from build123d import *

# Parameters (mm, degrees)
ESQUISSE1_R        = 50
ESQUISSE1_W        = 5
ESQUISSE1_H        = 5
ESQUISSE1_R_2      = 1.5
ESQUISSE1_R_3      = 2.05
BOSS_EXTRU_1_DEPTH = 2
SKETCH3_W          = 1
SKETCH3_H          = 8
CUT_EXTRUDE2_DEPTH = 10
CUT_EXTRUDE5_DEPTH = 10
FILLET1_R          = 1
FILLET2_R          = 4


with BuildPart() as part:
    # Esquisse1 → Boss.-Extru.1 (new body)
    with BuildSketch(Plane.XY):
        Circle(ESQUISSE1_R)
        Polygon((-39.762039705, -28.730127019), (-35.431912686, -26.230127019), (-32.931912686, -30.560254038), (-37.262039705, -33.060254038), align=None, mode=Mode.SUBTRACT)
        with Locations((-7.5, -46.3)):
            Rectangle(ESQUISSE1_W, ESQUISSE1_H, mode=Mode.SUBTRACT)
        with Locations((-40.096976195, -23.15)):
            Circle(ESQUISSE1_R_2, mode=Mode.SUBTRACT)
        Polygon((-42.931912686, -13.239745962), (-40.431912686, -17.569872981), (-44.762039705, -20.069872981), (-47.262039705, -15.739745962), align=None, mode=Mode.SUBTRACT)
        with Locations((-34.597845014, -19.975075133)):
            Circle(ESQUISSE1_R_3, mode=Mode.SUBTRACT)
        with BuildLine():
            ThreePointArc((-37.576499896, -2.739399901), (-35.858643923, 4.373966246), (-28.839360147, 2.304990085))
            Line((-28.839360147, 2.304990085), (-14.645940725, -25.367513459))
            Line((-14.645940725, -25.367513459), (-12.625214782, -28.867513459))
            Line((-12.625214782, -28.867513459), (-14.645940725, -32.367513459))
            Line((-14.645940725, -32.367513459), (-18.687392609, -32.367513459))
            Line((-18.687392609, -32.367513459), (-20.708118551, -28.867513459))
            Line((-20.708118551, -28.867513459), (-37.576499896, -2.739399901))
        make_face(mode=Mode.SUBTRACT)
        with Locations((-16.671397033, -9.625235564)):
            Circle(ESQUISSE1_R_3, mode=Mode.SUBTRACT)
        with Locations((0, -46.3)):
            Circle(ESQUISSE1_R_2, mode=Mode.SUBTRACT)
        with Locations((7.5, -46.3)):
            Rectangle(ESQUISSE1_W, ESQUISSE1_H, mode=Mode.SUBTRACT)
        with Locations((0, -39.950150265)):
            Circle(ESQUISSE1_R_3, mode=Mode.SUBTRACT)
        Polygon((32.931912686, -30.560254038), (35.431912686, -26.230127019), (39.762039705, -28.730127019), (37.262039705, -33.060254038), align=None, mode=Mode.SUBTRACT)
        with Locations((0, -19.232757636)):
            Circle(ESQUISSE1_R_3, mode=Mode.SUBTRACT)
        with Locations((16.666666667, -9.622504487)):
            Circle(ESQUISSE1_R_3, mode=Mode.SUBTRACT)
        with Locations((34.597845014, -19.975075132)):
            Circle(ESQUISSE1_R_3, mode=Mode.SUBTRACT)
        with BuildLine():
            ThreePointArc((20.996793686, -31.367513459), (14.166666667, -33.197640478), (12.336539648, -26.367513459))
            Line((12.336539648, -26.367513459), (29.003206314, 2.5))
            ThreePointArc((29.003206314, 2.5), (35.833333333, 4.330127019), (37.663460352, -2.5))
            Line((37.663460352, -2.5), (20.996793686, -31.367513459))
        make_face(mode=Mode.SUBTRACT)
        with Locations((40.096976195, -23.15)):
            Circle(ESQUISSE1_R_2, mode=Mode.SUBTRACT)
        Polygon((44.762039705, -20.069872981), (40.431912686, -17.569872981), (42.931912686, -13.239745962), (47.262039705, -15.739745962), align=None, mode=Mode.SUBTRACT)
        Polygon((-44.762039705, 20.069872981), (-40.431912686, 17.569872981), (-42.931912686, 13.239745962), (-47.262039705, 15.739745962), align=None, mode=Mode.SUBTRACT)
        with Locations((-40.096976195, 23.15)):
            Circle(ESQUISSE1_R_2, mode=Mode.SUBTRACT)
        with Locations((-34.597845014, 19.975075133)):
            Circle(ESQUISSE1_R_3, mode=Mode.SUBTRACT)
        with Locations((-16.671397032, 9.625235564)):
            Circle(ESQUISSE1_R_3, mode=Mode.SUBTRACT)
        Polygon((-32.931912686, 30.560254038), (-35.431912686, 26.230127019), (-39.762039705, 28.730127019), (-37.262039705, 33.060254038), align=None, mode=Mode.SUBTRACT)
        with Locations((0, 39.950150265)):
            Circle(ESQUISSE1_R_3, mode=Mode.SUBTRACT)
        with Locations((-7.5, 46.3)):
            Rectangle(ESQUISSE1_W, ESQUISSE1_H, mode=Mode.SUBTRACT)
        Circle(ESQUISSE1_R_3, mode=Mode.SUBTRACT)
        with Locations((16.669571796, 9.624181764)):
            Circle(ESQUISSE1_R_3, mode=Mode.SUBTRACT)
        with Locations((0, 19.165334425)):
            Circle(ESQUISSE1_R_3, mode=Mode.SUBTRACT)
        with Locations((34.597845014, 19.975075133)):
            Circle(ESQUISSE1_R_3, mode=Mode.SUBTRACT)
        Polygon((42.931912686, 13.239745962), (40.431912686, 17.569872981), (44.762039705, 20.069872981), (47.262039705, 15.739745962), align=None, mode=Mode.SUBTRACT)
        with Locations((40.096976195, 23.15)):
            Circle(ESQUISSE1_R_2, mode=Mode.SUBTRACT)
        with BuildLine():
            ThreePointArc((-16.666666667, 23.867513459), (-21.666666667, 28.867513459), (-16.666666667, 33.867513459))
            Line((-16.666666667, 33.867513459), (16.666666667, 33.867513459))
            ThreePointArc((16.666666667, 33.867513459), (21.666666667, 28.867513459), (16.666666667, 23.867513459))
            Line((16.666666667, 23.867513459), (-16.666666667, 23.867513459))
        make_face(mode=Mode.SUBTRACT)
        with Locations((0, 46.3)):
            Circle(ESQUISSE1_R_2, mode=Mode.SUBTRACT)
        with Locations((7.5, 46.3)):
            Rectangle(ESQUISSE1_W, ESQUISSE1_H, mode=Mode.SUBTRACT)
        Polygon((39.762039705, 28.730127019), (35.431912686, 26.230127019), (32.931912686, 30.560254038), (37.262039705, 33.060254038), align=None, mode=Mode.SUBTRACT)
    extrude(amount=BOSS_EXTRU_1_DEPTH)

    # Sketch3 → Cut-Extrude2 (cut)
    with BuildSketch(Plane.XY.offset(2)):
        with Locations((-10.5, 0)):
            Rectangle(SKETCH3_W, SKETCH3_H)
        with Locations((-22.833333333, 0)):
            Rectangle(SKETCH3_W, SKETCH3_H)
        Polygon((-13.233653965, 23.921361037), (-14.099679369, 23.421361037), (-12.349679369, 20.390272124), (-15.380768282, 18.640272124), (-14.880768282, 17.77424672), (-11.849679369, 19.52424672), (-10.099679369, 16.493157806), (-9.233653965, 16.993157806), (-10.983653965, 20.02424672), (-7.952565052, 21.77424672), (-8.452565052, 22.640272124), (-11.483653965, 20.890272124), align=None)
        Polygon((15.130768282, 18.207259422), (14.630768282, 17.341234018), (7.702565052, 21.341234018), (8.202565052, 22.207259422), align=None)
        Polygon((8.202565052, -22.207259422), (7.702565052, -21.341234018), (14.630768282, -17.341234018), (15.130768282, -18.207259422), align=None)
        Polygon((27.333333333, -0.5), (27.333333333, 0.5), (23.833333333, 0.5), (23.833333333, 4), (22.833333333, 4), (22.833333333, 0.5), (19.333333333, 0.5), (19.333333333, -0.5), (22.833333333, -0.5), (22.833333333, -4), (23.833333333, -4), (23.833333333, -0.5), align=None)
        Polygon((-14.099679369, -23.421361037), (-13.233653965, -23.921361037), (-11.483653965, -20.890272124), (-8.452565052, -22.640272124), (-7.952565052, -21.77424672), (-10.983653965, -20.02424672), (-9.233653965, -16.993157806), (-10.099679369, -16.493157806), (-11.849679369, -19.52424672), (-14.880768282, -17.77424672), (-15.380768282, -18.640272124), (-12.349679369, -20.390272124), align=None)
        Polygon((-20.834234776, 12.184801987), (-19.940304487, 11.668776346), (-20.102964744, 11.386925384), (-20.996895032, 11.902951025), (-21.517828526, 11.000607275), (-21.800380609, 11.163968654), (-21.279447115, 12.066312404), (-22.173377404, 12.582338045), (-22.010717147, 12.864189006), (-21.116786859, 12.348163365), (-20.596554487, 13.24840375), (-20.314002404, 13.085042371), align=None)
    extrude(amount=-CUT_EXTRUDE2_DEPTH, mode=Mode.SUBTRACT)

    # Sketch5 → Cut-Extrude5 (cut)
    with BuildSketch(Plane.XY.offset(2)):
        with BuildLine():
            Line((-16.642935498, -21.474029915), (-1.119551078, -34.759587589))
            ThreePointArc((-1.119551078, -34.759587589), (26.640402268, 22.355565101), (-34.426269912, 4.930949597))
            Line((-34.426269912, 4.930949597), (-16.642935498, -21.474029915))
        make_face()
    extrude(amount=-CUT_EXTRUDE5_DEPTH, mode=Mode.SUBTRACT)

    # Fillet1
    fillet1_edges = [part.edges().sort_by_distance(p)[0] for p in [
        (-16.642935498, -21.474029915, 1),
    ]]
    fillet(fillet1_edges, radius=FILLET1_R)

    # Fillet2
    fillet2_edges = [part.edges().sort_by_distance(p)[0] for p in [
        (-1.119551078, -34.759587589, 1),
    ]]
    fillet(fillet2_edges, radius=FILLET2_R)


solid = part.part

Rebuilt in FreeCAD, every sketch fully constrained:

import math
import FreeCAD as App
import Part
import Sketcher

V = App.Vector
Q = App.Units.Quantity


def edges_at(feature, points):
    """Names of the edges that pass closest to the given points."""
    edges = feature.Shape.Edges
    near = lambda p: min(range(len(edges)), key=lambda i: edges[i].distToShape(Part.Vertex(*p))[0])
    return sorted({f"Edge{near(p) + 1}" for p in points})

doc = App.newDocument("Part")
body = doc.addObject("PartDesign::Body", "Body")

# Sketch on XY plane
sketch1 = body.newObject("Sketcher::SketchObject", "Sketch")
sketch1.AttachmentSupport = (doc.getObject("XY_Plane"), [""])
sketch1.MapMode = "FlatFace"
sketch1.addGeometry([
    Part.Circle(V(0, 0, 0), V(0, 0, 1), 50),  # 0
    Part.LineSegment(V(-37.3, -33.1, 0), V(-39.8, -28.7, 0)),  # 1
    Part.LineSegment(V(-39.8, -28.7, 0), V(-35.4, -26.2, 0)),  # 2
    Part.LineSegment(V(-35.4, -26.2, 0), V(-32.9, -30.6, 0)),  # 3
    Part.LineSegment(V(-32.9, -30.6, 0), V(-37.3, -33.1, 0)),  # 4
    Part.LineSegment(V(-5, -48.8, 0), V(-10, -48.8, 0)),  # 5
    Part.LineSegment(V(-10, -48.8, 0), V(-10, -43.8, 0)),  # 6
    Part.LineSegment(V(-10, -43.8, 0), V(-5, -43.8, 0)),  # 7
    Part.LineSegment(V(-5, -43.8, 0), V(-5, -48.8, 0)),  # 8
    Part.Circle(V(-40.1, -23.1, 0), V(0, 0, 1), 1.5),  # 9
    Part.LineSegment(V(-47.3, -15.7, 0), V(-42.9, -13.2, 0)),  # 10
    Part.LineSegment(V(-42.9, -13.2, 0), V(-40.4, -17.6, 0)),  # 11
    Part.LineSegment(V(-40.4, -17.6, 0), V(-44.8, -20.1, 0)),  # 12
    Part.LineSegment(V(-44.8, -20.1, 0), V(-47.3, -15.7, 0)),  # 13
    Part.Circle(V(-34.6, -20, 0), V(0, 0, 1), 2),  # 14
    Part.LineSegment(V(-20.7, -28.9, 0), V(-37.6, -2.7, 0)),  # 15
    Part.ArcOfCircle(Part.Circle(V(-33.3, 0, 0), V(0, 0, 1), 5.1), math.radians(27), math.radians(213)),  # 16
    Part.LineSegment(V(-28.8, 2.3, 0), V(-14.6, -25.4, 0)),  # 17
    Part.LineSegment(V(-14.6, -25.4, 0), V(-12.6, -28.9, 0)),  # 18
    Part.LineSegment(V(-12.6, -28.9, 0), V(-14.6, -32.4, 0)),  # 19
    Part.LineSegment(V(-14.6, -32.4, 0), V(-18.7, -32.4, 0)),  # 20
    Part.LineSegment(V(-18.7, -32.4, 0), V(-20.7, -28.9, 0)),  # 21
    Part.Circle(V(-16.7, -9.6, 0), V(0, 0, 1), 2),  # 22
    Part.Circle(V(0, -46.3, 0), V(0, 0, 1), 1.5),  # 23
    Part.LineSegment(V(10, -48.8, 0), V(5, -48.8, 0)),  # 24
    Part.LineSegment(V(5, -48.8, 0), V(5, -43.8, 0)),  # 25
    Part.LineSegment(V(5, -43.8, 0), V(10, -43.8, 0)),  # 26
    Part.LineSegment(V(10, -43.8, 0), V(10, -48.8, 0)),  # 27
    Part.Circle(V(0, -40, 0), V(0, 0, 1), 2),  # 28
    Part.LineSegment(V(37.3, -33.1, 0), V(32.9, -30.6, 0)),  # 29
    Part.LineSegment(V(32.9, -30.6, 0), V(35.4, -26.2, 0)),  # 30
    Part.LineSegment(V(35.4, -26.2, 0), V(39.8, -28.7, 0)),  # 31
    Part.LineSegment(V(39.8, -28.7, 0), V(37.3, -33.1, 0)),  # 32
    Part.Circle(V(0, -19.2, 0), V(0, 0, 1), 2),  # 33
    Part.Circle(V(16.7, -9.6, 0), V(0, 0, 1), 2),  # 34
    Part.Circle(V(34.6, -20, 0), V(0, 0, 1), 2),  # 35
    Part.LineSegment(V(37.7, -2.5, 0), V(21, -31.4, 0)),  # 36
    Part.ArcOfCircle(Part.Circle(V(16.7, -28.9, 0), V(0, 0, 1), 5), math.radians(150), math.radians(330)),  # 37
    Part.LineSegment(V(12.3, -26.4, 0), V(29, 2.5, 0)),  # 38
    Part.ArcOfCircle(Part.Circle(V(33.3, 0, 0), V(0, 0, 1), 5), math.radians(-30), math.radians(150)),  # 39
    Part.Circle(V(40.1, -23.1, 0), V(0, 0, 1), 1.5),  # 40
    Part.LineSegment(V(47.3, -15.7, 0), V(44.8, -20.1, 0)),  # 41
    Part.LineSegment(V(44.8, -20.1, 0), V(40.4, -17.6, 0)),  # 42
    Part.LineSegment(V(40.4, -17.6, 0), V(42.9, -13.2, 0)),  # 43
    Part.LineSegment(V(42.9, -13.2, 0), V(47.3, -15.7, 0)),  # 44
    Part.LineSegment(V(-47.3, 15.7, 0), V(-44.8, 20.1, 0)),  # 45
    Part.LineSegment(V(-44.8, 20.1, 0), V(-40.4, 17.6, 0)),  # 46
    Part.LineSegment(V(-40.4, 17.6, 0), V(-42.9, 13.2, 0)),  # 47
    Part.LineSegment(V(-42.9, 13.2, 0), V(-47.3, 15.7, 0)),  # 48
    Part.Circle(V(-40.1, 23.1, 0), V(0, 0, 1), 1.5),  # 49
    Part.Circle(V(-34.6, 20, 0), V(0, 0, 1), 2),  # 50
    Part.Circle(V(-16.7, 9.6, 0), V(0, 0, 1), 2),  # 51
    Part.LineSegment(V(-37.3, 33.1, 0), V(-32.9, 30.6, 0)),  # 52
    Part.LineSegment(V(-32.9, 30.6, 0), V(-35.4, 26.2, 0)),  # 53
    Part.LineSegment(V(-35.4, 26.2, 0), V(-39.8, 28.7, 0)),  # 54
    Part.LineSegment(V(-39.8, 28.7, 0), V(-37.3, 33.1, 0)),  # 55
    Part.LineSegment(V(-5, 43.8, 0), V(-10, 43.8, 0)),  # 56
    Part.LineSegment(V(-10, 43.8, 0), V(-10, 48.8, 0)),  # 57
    Part.LineSegment(V(-10, 48.8, 0), V(-5, 48.8, 0)),  # 58
    Part.LineSegment(V(-5, 48.8, 0), V(-5, 43.8, 0)),  # 59
    Part.Circle(V(0, 0, 0), V(0, 0, 1), 2),  # 60
    Part.Circle(V(16.7, 9.6, 0), V(0, 0, 1), 2),  # 61
    Part.Circle(V(0, 19.2, 0), V(0, 0, 1), 2),  # 62
    Part.Circle(V(34.6, 20, 0), V(0, 0, 1), 2),  # 63
    Part.LineSegment(V(47.3, 15.7, 0), V(42.9, 13.2, 0)),  # 64
    Part.LineSegment(V(42.9, 13.2, 0), V(40.4, 17.6, 0)),  # 65
    Part.LineSegment(V(40.4, 17.6, 0), V(44.8, 20.1, 0)),  # 66
    Part.LineSegment(V(44.8, 20.1, 0), V(47.3, 15.7, 0)),  # 67
    Part.Circle(V(40.1, 23.1, 0), V(0, 0, 1), 1.5),  # 68
    Part.LineSegment(V(16.7, 23.9, 0), V(-16.7, 23.9, 0)),  # 69
    Part.ArcOfCircle(Part.Circle(V(-16.7, 28.9, 0), V(0, 0, 1), 5), math.radians(90), math.radians(270)),  # 70
    Part.LineSegment(V(-16.7, 33.9, 0), V(16.7, 33.9, 0)),  # 71
    Part.ArcOfCircle(Part.Circle(V(16.7, 28.9, 0), V(0, 0, 1), 5), math.radians(-90), math.radians(90)),  # 72
    Part.Circle(V(0, 40, 0), V(0, 0, 1), 2),  # 73
    Part.Circle(V(0, 46.3, 0), V(0, 0, 1), 1.5),  # 74
    Part.LineSegment(V(10, 43.8, 0), V(5, 43.8, 0)),  # 75
    Part.LineSegment(V(5, 43.8, 0), V(5, 48.8, 0)),  # 76
    Part.LineSegment(V(5, 48.8, 0), V(10, 48.8, 0)),  # 77
    Part.LineSegment(V(10, 48.8, 0), V(10, 43.8, 0)),  # 78
    Part.LineSegment(V(37.3, 33.1, 0), V(39.8, 28.7, 0)),  # 79
    Part.LineSegment(V(39.8, 28.7, 0), V(35.4, 26.2, 0)),  # 80
    Part.LineSegment(V(35.4, 26.2, 0), V(32.9, 30.6, 0)),  # 81
    Part.LineSegment(V(32.9, 30.6, 0), V(37.3, 33.1, 0)),  # 82
], False)
sketch1.addConstraint([
    Sketcher.Constraint("Coincident", 1, 2, 2, 1),
    Sketcher.Constraint("Coincident", 2, 2, 3, 1),
    Sketcher.Constraint("Coincident", 3, 2, 4, 1),
    Sketcher.Constraint("Coincident", 4, 2, 1, 1),
    Sketcher.Constraint("Coincident", 5, 2, 6, 1),
    Sketcher.Constraint("Coincident", 6, 2, 7, 1),
    Sketcher.Constraint("Coincident", 7, 2, 8, 1),
    Sketcher.Constraint("Coincident", 8, 2, 5, 1),
    Sketcher.Constraint("Coincident", 10, 2, 11, 1),
    Sketcher.Constraint("Coincident", 11, 2, 12, 1),
    Sketcher.Constraint("Coincident", 12, 2, 13, 1),
    Sketcher.Constraint("Coincident", 13, 2, 10, 1),
    Sketcher.Constraint("Tangent", 15, 2, 16, 2),
    Sketcher.Constraint("Tangent", 16, 1, 17, 1),
    Sketcher.Constraint("Coincident", 17, 2, 18, 1),
    Sketcher.Constraint("Coincident", 18, 2, 19, 1),
    Sketcher.Constraint("Coincident", 19, 2, 20, 1),
    Sketcher.Constraint("Coincident", 20, 2, 21, 1),
    Sketcher.Constraint("Coincident", 21, 2, 15, 1),
    Sketcher.Constraint("Coincident", 24, 2, 25, 1),
    Sketcher.Constraint("Coincident", 25, 2, 26, 1),
    Sketcher.Constraint("Coincident", 26, 2, 27, 1),
    Sketcher.Constraint("Coincident", 27, 2, 24, 1),
    Sketcher.Constraint("Coincident", 29, 2, 30, 1),
    Sketcher.Constraint("Coincident", 30, 2, 31, 1),
    Sketcher.Constraint("Coincident", 31, 2, 32, 1),
    Sketcher.Constraint("Coincident", 32, 2, 29, 1),
    Sketcher.Constraint("Tangent", 36, 2, 37, 2),
    Sketcher.Constraint("Tangent", 37, 1, 38, 1),
    Sketcher.Constraint("Tangent", 38, 2, 39, 2),
    Sketcher.Constraint("Tangent", 39, 1, 36, 1),
    Sketcher.Constraint("Coincident", 41, 2, 42, 1),
    Sketcher.Constraint("Coincident", 42, 2, 43, 1),
    Sketcher.Constraint("Coincident", 43, 2, 44, 1),
    Sketcher.Constraint("Coincident", 44, 2, 41, 1),
    Sketcher.Constraint("Coincident", 45, 2, 46, 1),
    Sketcher.Constraint("Coincident", 46, 2, 47, 1),
    Sketcher.Constraint("Coincident", 47, 2, 48, 1),
    Sketcher.Constraint("Coincident", 48, 2, 45, 1),
    Sketcher.Constraint("Coincident", 52, 2, 53, 1),
    Sketcher.Constraint("Coincident", 53, 2, 54, 1),
    Sketcher.Constraint("Coincident", 54, 2, 55, 1),
    Sketcher.Constraint("Coincident", 55, 2, 52, 1),
    Sketcher.Constraint("Coincident", 56, 2, 57, 1),
    Sketcher.Constraint("Coincident", 57, 2, 58, 1),
    Sketcher.Constraint("Coincident", 58, 2, 59, 1),
    Sketcher.Constraint("Coincident", 59, 2, 56, 1),
    Sketcher.Constraint("Coincident", 64, 2, 65, 1),
    Sketcher.Constraint("Coincident", 65, 2, 66, 1),
    Sketcher.Constraint("Coincident", 66, 2, 67, 1),
    Sketcher.Constraint("Coincident", 67, 2, 64, 1),
    Sketcher.Constraint("Tangent", 69, 2, 70, 2),
    Sketcher.Constraint("Tangent", 70, 1, 71, 1),
    Sketcher.Constraint("Tangent", 71, 2, 72, 2),
    Sketcher.Constraint("Tangent", 72, 1, 69, 1),
    Sketcher.Constraint("Coincident", 75, 2, 76, 1),
    Sketcher.Constraint("Coincident", 76, 2, 77, 1),
    Sketcher.Constraint("Coincident", 77, 2, 78, 1),
    Sketcher.Constraint("Coincident", 78, 2, 75, 1),
    Sketcher.Constraint("Coincident", 79, 2, 80, 1),
    Sketcher.Constraint("Coincident", 80, 2, 81, 1),
    Sketcher.Constraint("Coincident", 81, 2, 82, 1),
    Sketcher.Constraint("Coincident", 82, 2, 79, 1),
    Sketcher.Constraint("Horizontal", 5),
    Sketcher.Constraint("Vertical", 6),
    Sketcher.Constraint("Horizontal", 7),
    Sketcher.Constraint("Vertical", 8),
    Sketcher.Constraint("Horizontal", 20),
    Sketcher.Constraint("Horizontal", 24),
    Sketcher.Constraint("Vertical", 25),
    Sketcher.Constraint("Horizontal", 26),
    Sketcher.Constraint("Vertical", 27),
    Sketcher.Constraint("Horizontal", 56),
    Sketcher.Constraint("Vertical", 57),
    Sketcher.Constraint("Horizontal", 58),
    Sketcher.Constraint("Vertical", 59),
    Sketcher.Constraint("Horizontal", 69),
    Sketcher.Constraint("Horizontal", 71),
    Sketcher.Constraint("Horizontal", 75),
    Sketcher.Constraint("Vertical", 76),
    Sketcher.Constraint("Horizontal", 77),
    Sketcher.Constraint("Vertical", 78),
    Sketcher.Constraint("Coincident", 0, 3, -1, 1),
    Sketcher.Constraint("Coincident", 60, 3, -1, 1),
    Sketcher.Constraint("Equal", 14, 22),
    Sketcher.Constraint("Equal", 9, 23),
    Sketcher.Constraint("Equal", 22, 28),
    Sketcher.Constraint("Equal", 28, 33),
    Sketcher.Constraint("Equal", 33, 34),
    Sketcher.Constraint("Equal", 34, 35),
    Sketcher.Constraint("Equal", 37, 39),
    Sketcher.Constraint("Equal", 23, 40),
    Sketcher.Constraint("Equal", 40, 49),
    Sketcher.Constraint("Equal", 35, 50),
    Sketcher.Constraint("Equal", 50, 51),
    Sketcher.Constraint("Equal", 51, 60),
    Sketcher.Constraint("Equal", 60, 61),
    Sketcher.Constraint("Equal", 61, 62),
    Sketcher.Constraint("Equal", 62, 63),
    Sketcher.Constraint("Equal", 49, 68),
    Sketcher.Constraint("Equal", 39, 70),
    Sketcher.Constraint("Equal", 63, 73),
    Sketcher.Constraint("Equal", 68, 74),
    Sketcher.Constraint("Symmetric", 16, 3, 39, 3, -1, 1),
    Sketcher.Constraint("Symmetric", 40, 3, 49, 3, -1, 1),
    Sketcher.Constraint("Symmetric", 35, 3, 50, 3, -1, 1),
    Sketcher.Constraint("Symmetric", 14, 3, 63, 3, -1, 1),
    Sketcher.Constraint("Symmetric", 9, 3, 68, 3, -1, 1),
    Sketcher.Constraint("Symmetric", 37, 3, 70, 3, -1, 1),
    Sketcher.Constraint("Symmetric", 28, 3, 73, 3, -1, 1),
    Sketcher.Constraint("Symmetric", 23, 3, 74, 3, -1, 1),
    Sketcher.Constraint("Symmetric", 41, 2, 45, 2, -1, 1),
    Sketcher.Constraint("Symmetric", 42, 2, 46, 2, -1, 1),
    Sketcher.Constraint("Symmetric", 43, 2, 47, 2, -1, 1),
    Sketcher.Constraint("Symmetric", 44, 2, 48, 2, -1, 1),
    Sketcher.Constraint("Symmetric", 29, 2, 52, 2, -1, 1),
    Sketcher.Constraint("Symmetric", 30, 2, 53, 2, -1, 1),
    Sketcher.Constraint("Symmetric", 31, 2, 54, 2, -1, 1),
    Sketcher.Constraint("Symmetric", 32, 2, 55, 2, -1, 1),
    Sketcher.Constraint("Symmetric", 26, 2, 56, 2, -1, 1),
    Sketcher.Constraint("Symmetric", 24, 2, 58, 2, -1, 1),
    Sketcher.Constraint("Symmetric", 10, 2, 64, 2, -1, 1),
    Sketcher.Constraint("Symmetric", 11, 2, 65, 2, -1, 1),
    Sketcher.Constraint("Symmetric", 12, 2, 66, 2, -1, 1),
    Sketcher.Constraint("Symmetric", 13, 2, 67, 2, -1, 1),
    Sketcher.Constraint("Symmetric", 7, 2, 75, 2, -1, 1),
    Sketcher.Constraint("Symmetric", 5, 2, 77, 2, -1, 1),
    Sketcher.Constraint("Symmetric", 1, 2, 79, 2, -1, 1),
    Sketcher.Constraint("Symmetric", 2, 2, 80, 2, -1, 1),
    Sketcher.Constraint("Symmetric", 3, 2, 81, 2, -1, 1),
    Sketcher.Constraint("Symmetric", 4, 2, 82, 2, -1, 1),
    Sketcher.Constraint("Symmetric", 14, 3, 35, 3, -2),
    Sketcher.Constraint("Symmetric", 9, 3, 40, 3, -2),
    Sketcher.Constraint("Symmetric", 8, 2, 24, 2, -2),
    Sketcher.Constraint("Symmetric", 6, 2, 26, 2, -2),
    Sketcher.Constraint("Symmetric", 3, 2, 29, 2, -2),
    Sketcher.Constraint("Symmetric", 2, 2, 30, 2, -2),
    Sketcher.Constraint("Symmetric", 1, 2, 31, 2, -2),
    Sketcher.Constraint("Symmetric", 4, 2, 32, 2, -2),
    Sketcher.Constraint("Symmetric", 12, 2, 41, 2, -2),
    Sketcher.Constraint("Symmetric", 11, 2, 42, 2, -2),
    Sketcher.Constraint("Symmetric", 10, 2, 43, 2, -2),
    Sketcher.Constraint("Symmetric", 13, 2, 44, 2, -2),
    Sketcher.Constraint("Symmetric", 22, 3, 51, 3, -1),
    Sketcher.Constraint("PointOnObject", 16, 3, -1),
    Sketcher.Constraint("PointOnObject", 23, 3, -2),
    Sketcher.Constraint("PointOnObject", 28, 3, -2),
    Sketcher.Constraint("PointOnObject", 33, 3, -2),
    Sketcher.Constraint("PointOnObject", 62, 3, -2),
    Sketcher.Constraint("Perpendicular", 1, 2),
    Sketcher.Constraint("Perpendicular", 2, 3),
    Sketcher.Constraint("Perpendicular", 3, 4),
    Sketcher.Constraint("Parallel", 4, 10),
    Sketcher.Constraint("Perpendicular", 10, 11),
    Sketcher.Constraint("Perpendicular", 11, 12),
    Sketcher.Constraint("Perpendicular", 12, 13),
    Sketcher.Constraint("Parallel", 13, 18),
    Sketcher.Constraint("Parallel", 18, 21),
    Sketcher.Constraint("Perpendicular", 19, 29),
    Sketcher.Constraint("Parallel", 32, 36),
    Sketcher.Constraint("Horizontal", 37, 3, 18, 2),
    Sketcher.Constraint("Horizontal", 18, 2, 21, 2),
    Sketcher.Constraint("Vertical", 34, 3, 37, 3),
    Sketcher.Constraint("Vertical", 37, 3, 72, 3),
    Sketcher.Constraint("Vertical", 17, 2, 19, 2),
    Sketcher.Constraint("Equal", 77, 6),
    Sketcher.Constraint("Equal", 1, 2),
    Sketcher.Constraint("Equal", 4, 10),
    Sketcher.Constraint("Equal", 10, 11),
    Sketcher.Constraint("Equal", 15, 17),
    Sketcher.Constraint("Diameter", 0, 100.0),
    Sketcher.Constraint("Diameter", 9, 3.0),
    Sketcher.Constraint("Radius", 37, 5.0),
    Sketcher.Constraint("Diameter", 14, 4.1),
    Sketcher.Constraint("DistanceX", 5, 2, 5, 1, 5.0),
    Sketcher.Constraint("Angle", 1, Q("120 deg")),
    Sketcher.Constraint("Distance", 1, 5.0),
    Sketcher.Constraint("DistanceX", 5, 2, -1, 1, 10.0),
    Sketcher.Constraint("DistanceY", 23, 3, -1, 1, 46.3),
    Sketcher.Constraint("DistanceY", 5, 2, -1, 1, 48.8),
    Sketcher.Constraint("DistanceY", 9, 3, -1, 1, 23.15),
    Sketcher.Constraint("Radius", 16, 5.050621),
    Sketcher.Constraint("DistanceX", 20, 2, 20, 1, 4.041452),
    Sketcher.Constraint("DistanceX", 15, 2, -1, 1, 37.5765),
    Sketcher.Constraint("DistanceY", 15, 2, -1, 1, 2.7394),
    Sketcher.Constraint("Distance", 15, 31.100171),
    Sketcher.Constraint("DistanceY", 28, 3, -1, 1, 39.95015),
    Sketcher.Constraint("DistanceX", -1, 1, 61, 3, 16.669572),
    Sketcher.Constraint("DistanceY", -1, 1, 61, 3, 9.624182),
    Sketcher.Constraint("DistanceX", 1, 2, -1, 1, 39.76204),
    Sketcher.Constraint("DistanceX", 12, 2, -1, 1, 44.76204),
    Sketcher.Constraint("DistanceX", 9, 3, -1, 1, 40.096976),
    Sketcher.Constraint("DistanceX", 14, 3, -1, 1, 34.597845),
    Sketcher.Constraint("DistanceY", 14, 3, -1, 1, 19.975075),
    Sketcher.Constraint("DistanceX", 22, 3, -1, 1, 16.671397),
    Sketcher.Constraint("DistanceY", 22, 3, -1, 1, 9.625236),
    Sketcher.Constraint("DistanceY", 33, 3, -1, 1, 19.232758),
    Sketcher.Constraint("DistanceY", 34, 3, -1, 1, 9.622504),
    Sketcher.Constraint("DistanceY", -1, 1, 62, 3, 19.165334),
    Sketcher.Constraint("DistanceY", 1, 2, -1, 1, 28.730127),
    Sketcher.Constraint("DistanceY", 10, 2, -1, 1, 13.239746),
])
pad1 = body.newObject("PartDesign::Pad", "Pad")
pad1.Profile = sketch1
pad1.Length = 2

# Sketch on XY plane
sketch2 = body.newObject("Sketcher::SketchObject", "Sketch001")
sketch2.AttachmentSupport = (doc.getObject("XY_Plane"), [""])
sketch2.MapMode = "FlatFace"
sketch2.AttachmentOffset = App.Placement(V(0, 0, 2), App.Rotation())
sketch2.addGeometry([
    Part.LineSegment(V(-11, 4, 0), V(-11, -4, 0)),  # 0
    Part.LineSegment(V(-11, -4, 0), V(-10, -4, 0)),  # 1
    Part.LineSegment(V(-10, -4, 0), V(-10, 4, 0)),  # 2
    Part.LineSegment(V(-10, 4, 0), V(-11, 4, 0)),  # 3
    Part.LineSegment(V(-23.33, 4, 0), V(-23.33, -4, 0)),  # 4
    Part.LineSegment(V(-23.33, -4, 0), V(-22.33, -4, 0)),  # 5
    Part.LineSegment(V(-22.33, -4, 0), V(-22.33, 4, 0)),  # 6
    Part.LineSegment(V(-22.33, 4, 0), V(-23.33, 4, 0)),  # 7
    Part.LineSegment(V(-13.23, 23.92, 0), V(-14.1, 23.42, 0)),  # 8
    Part.LineSegment(V(-14.1, 23.42, 0), V(-12.35, 20.39, 0)),  # 9
    Part.LineSegment(V(-12.35, 20.39, 0), V(-15.38, 18.64, 0)),  # 10
    Part.LineSegment(V(-15.38, 18.64, 0), V(-14.88, 17.77, 0)),  # 11
    Part.LineSegment(V(-14.88, 17.77, 0), V(-11.85, 19.52, 0)),  # 12
    Part.LineSegment(V(-11.85, 19.52, 0), V(-10.1, 16.49, 0)),  # 13
    Part.LineSegment(V(-10.1, 16.49, 0), V(-9.23, 16.99, 0)),  # 14
    Part.LineSegment(V(-9.23, 16.99, 0), V(-10.98, 20.02, 0)),  # 15
    Part.LineSegment(V(-10.98, 20.02, 0), V(-7.95, 21.77, 0)),  # 16
    Part.LineSegment(V(-7.95, 21.77, 0), V(-8.45, 22.64, 0)),  # 17
    Part.LineSegment(V(-8.45, 22.64, 0), V(-11.48, 20.89, 0)),  # 18
    Part.LineSegment(V(-11.48, 20.89, 0), V(-13.23, 23.92, 0)),  # 19
    Part.LineSegment(V(14.63, 17.34, 0), V(15.13, 18.21, 0)),  # 20
    Part.LineSegment(V(15.13, 18.21, 0), V(8.2, 22.21, 0)),  # 21
    Part.LineSegment(V(8.2, 22.21, 0), V(7.7, 21.34, 0)),  # 22
    Part.LineSegment(V(7.7, 21.34, 0), V(14.63, 17.34, 0)),  # 23
    Part.LineSegment(V(7.7, -21.34, 0), V(8.2, -22.21, 0)),  # 24
    Part.LineSegment(V(8.2, -22.21, 0), V(15.13, -18.21, 0)),  # 25
    Part.LineSegment(V(15.13, -18.21, 0), V(14.63, -17.34, 0)),  # 26
    Part.LineSegment(V(14.63, -17.34, 0), V(7.7, -21.34, 0)),  # 27
    Part.LineSegment(V(27.33, -0.5, 0), V(27.33, 0.5, 0)),  # 28
    Part.LineSegment(V(27.33, 0.5, 0), V(23.83, 0.5, 0)),  # 29
    Part.LineSegment(V(23.83, 0.5, 0), V(23.83, 4, 0)),  # 30
    Part.LineSegment(V(23.83, 4, 0), V(22.83, 4, 0)),  # 31
    Part.LineSegment(V(22.83, 4, 0), V(22.83, 0.5, 0)),  # 32
    Part.LineSegment(V(22.83, 0.5, 0), V(19.33, 0.5, 0)),  # 33
    Part.LineSegment(V(19.33, 0.5, 0), V(19.33, -0.5, 0)),  # 34
    Part.LineSegment(V(19.33, -0.5, 0), V(22.83, -0.5, 0)),  # 35
    Part.LineSegment(V(22.83, -0.5, 0), V(22.83, -4, 0)),  # 36
    Part.LineSegment(V(22.83, -4, 0), V(23.83, -4, 0)),  # 37
    Part.LineSegment(V(23.83, -4, 0), V(23.83, -0.5, 0)),  # 38
    Part.LineSegment(V(23.83, -0.5, 0), V(27.33, -0.5, 0)),  # 39
    Part.LineSegment(V(-14.1, -23.42, 0), V(-13.23, -23.92, 0)),  # 40
    Part.LineSegment(V(-13.23, -23.92, 0), V(-11.48, -20.89, 0)),  # 41
    Part.LineSegment(V(-11.48, -20.89, 0), V(-8.45, -22.64, 0)),  # 42
    Part.LineSegment(V(-8.45, -22.64, 0), V(-7.95, -21.77, 0)),  # 43
    Part.LineSegment(V(-7.95, -21.77, 0), V(-10.98, -20.02, 0)),  # 44
    Part.LineSegment(V(-10.98, -20.02, 0), V(-9.23, -16.99, 0)),  # 45
    Part.LineSegment(V(-9.23, -16.99, 0), V(-10.1, -16.49, 0)),  # 46
    Part.LineSegment(V(-10.1, -16.49, 0), V(-11.85, -19.52, 0)),  # 47
    Part.LineSegment(V(-11.85, -19.52, 0), V(-14.88, -17.77, 0)),  # 48
    Part.LineSegment(V(-14.88, -17.77, 0), V(-15.38, -18.64, 0)),  # 49
    Part.LineSegment(V(-15.38, -18.64, 0), V(-12.35, -20.39, 0)),  # 50
    Part.LineSegment(V(-12.35, -20.39, 0), V(-14.1, -23.42, 0)),  # 51
    Part.LineSegment(V(-19.94, 11.67, 0), V(-20.83, 12.18, 0)),  # 52
    Part.LineSegment(V(-20.83, 12.18, 0), V(-20.31, 13.09, 0)),  # 53
    Part.LineSegment(V(-20.31, 13.09, 0), V(-20.6, 13.25, 0)),  # 54
    Part.LineSegment(V(-20.6, 13.25, 0), V(-21.12, 12.35, 0)),  # 55
    Part.LineSegment(V(-21.12, 12.35, 0), V(-22.01, 12.86, 0)),  # 56
    Part.LineSegment(V(-22.01, 12.86, 0), V(-22.17, 12.58, 0)),  # 57
    Part.LineSegment(V(-22.17, 12.58, 0), V(-21.28, 12.07, 0)),  # 58
    Part.LineSegment(V(-21.28, 12.07, 0), V(-21.8, 11.16, 0)),  # 59
    Part.LineSegment(V(-21.8, 11.16, 0), V(-21.52, 11, 0)),  # 60
    Part.LineSegment(V(-21.52, 11, 0), V(-21, 11.9, 0)),  # 61
    Part.LineSegment(V(-21, 11.9, 0), V(-20.1, 11.39, 0)),  # 62
    Part.LineSegment(V(-20.1, 11.39, 0), V(-19.94, 11.67, 0)),  # 63
], False)
sketch2.addConstraint([
    Sketcher.Constraint("Coincident", 0, 2, 1, 1),
    Sketcher.Constraint("Coincident", 1, 2, 2, 1),
    Sketcher.Constraint("Coincident", 2, 2, 3, 1),
    Sketcher.Constraint("Coincident", 3, 2, 0, 1),
    Sketcher.Constraint("Coincident", 4, 2, 5, 1),
    Sketcher.Constraint("Coincident", 5, 2, 6, 1),
    Sketcher.Constraint("Coincident", 6, 2, 7, 1),
    Sketcher.Constraint("Coincident", 7, 2, 4, 1),
    Sketcher.Constraint("Coincident", 8, 2, 9, 1),
    Sketcher.Constraint("Coincident", 9, 2, 10, 1),
    Sketcher.Constraint("Coincident", 10, 2, 11, 1),
    Sketcher.Constraint("Coincident", 11, 2, 12, 1),
    Sketcher.Constraint("Coincident", 12, 2, 13, 1),
    Sketcher.Constraint("Coincident", 13, 2, 14, 1),
    Sketcher.Constraint("Coincident", 14, 2, 15, 1),
    Sketcher.Constraint("Coincident", 15, 2, 16, 1),
    Sketcher.Constraint("Coincident", 16, 2, 17, 1),
    Sketcher.Constraint("Coincident", 17, 2, 18, 1),
    Sketcher.Constraint("Coincident", 18, 2, 19, 1),
    Sketcher.Constraint("Coincident", 19, 2, 8, 1),
    Sketcher.Constraint("Coincident", 20, 2, 21, 1),
    Sketcher.Constraint("Coincident", 21, 2, 22, 1),
    Sketcher.Constraint("Coincident", 22, 2, 23, 1),
    Sketcher.Constraint("Coincident", 23, 2, 20, 1),
    Sketcher.Constraint("Coincident", 24, 2, 25, 1),
    Sketcher.Constraint("Coincident", 25, 2, 26, 1),
    Sketcher.Constraint("Coincident", 26, 2, 27, 1),
    Sketcher.Constraint("Coincident", 27, 2, 24, 1),
    Sketcher.Constraint("Coincident", 28, 2, 29, 1),
    Sketcher.Constraint("Coincident", 29, 2, 30, 1),
    Sketcher.Constraint("Coincident", 30, 2, 31, 1),
    Sketcher.Constraint("Coincident", 31, 2, 32, 1),
    Sketcher.Constraint("Coincident", 32, 2, 33, 1),
    Sketcher.Constraint("Coincident", 33, 2, 34, 1),
    Sketcher.Constraint("Coincident", 34, 2, 35, 1),
    Sketcher.Constraint("Coincident", 35, 2, 36, 1),
    Sketcher.Constraint("Coincident", 36, 2, 37, 1),
    Sketcher.Constraint("Coincident", 37, 2, 38, 1),
    Sketcher.Constraint("Coincident", 38, 2, 39, 1),
    Sketcher.Constraint("Coincident", 39, 2, 28, 1),
    Sketcher.Constraint("Coincident", 40, 2, 41, 1),
    Sketcher.Constraint("Coincident", 41, 2, 42, 1),
    Sketcher.Constraint("Coincident", 42, 2, 43, 1),
    Sketcher.Constraint("Coincident", 43, 2, 44, 1),
    Sketcher.Constraint("Coincident", 44, 2, 45, 1),
    Sketcher.Constraint("Coincident", 45, 2, 46, 1),
    Sketcher.Constraint("Coincident", 46, 2, 47, 1),
    Sketcher.Constraint("Coincident", 47, 2, 48, 1),
    Sketcher.Constraint("Coincident", 48, 2, 49, 1),
    Sketcher.Constraint("Coincident", 49, 2, 50, 1),
    Sketcher.Constraint("Coincident", 50, 2, 51, 1),
    Sketcher.Constraint("Coincident", 51, 2, 40, 1),
    Sketcher.Constraint("Coincident", 52, 2, 53, 1),
    Sketcher.Constraint("Coincident", 53, 2, 54, 1),
    Sketcher.Constraint("Coincident", 54, 2, 55, 1),
    Sketcher.Constraint("Coincident", 55, 2, 56, 1),
    Sketcher.Constraint("Coincident", 56, 2, 57, 1),
    Sketcher.Constraint("Coincident", 57, 2, 58, 1),
    Sketcher.Constraint("Coincident", 58, 2, 59, 1),
    Sketcher.Constraint("Coincident", 59, 2, 60, 1),
    Sketcher.Constraint("Coincident", 60, 2, 61, 1),
    Sketcher.Constraint("Coincident", 61, 2, 62, 1),
    Sketcher.Constraint("Coincident", 62, 2, 63, 1),
    Sketcher.Constraint("Coincident", 63, 2, 52, 1),
    Sketcher.Constraint("Vertical", 0),
    Sketcher.Constraint("Horizontal", 1),
    Sketcher.Constraint("Vertical", 2),
    Sketcher.Constraint("Horizontal", 3),
    Sketcher.Constraint("Vertical", 4),
    Sketcher.Constraint("Horizontal", 5),
    Sketcher.Constraint("Vertical", 6),
    Sketcher.Constraint("Horizontal", 7),
    Sketcher.Constraint("Vertical", 28),
    Sketcher.Constraint("Horizontal", 29),
    Sketcher.Constraint("Vertical", 30),
    Sketcher.Constraint("Horizontal", 31),
    Sketcher.Constraint("Vertical", 32),
    Sketcher.Constraint("Horizontal", 33),
    Sketcher.Constraint("Vertical", 34),
    Sketcher.Constraint("Horizontal", 35),
    Sketcher.Constraint("Vertical", 36),
    Sketcher.Constraint("Horizontal", 37),
    Sketcher.Constraint("Vertical", 38),
    Sketcher.Constraint("Horizontal", 39),
    Sketcher.Constraint("Symmetric", 21, 2, 24, 2, -1),
    Sketcher.Constraint("Symmetric", 20, 2, 25, 2, -1),
    Sketcher.Constraint("Symmetric", 23, 2, 26, 2, -1),
    Sketcher.Constraint("Symmetric", 22, 2, 27, 2, -1),
    Sketcher.Constraint("Symmetric", 32, 2, 35, 2, -1),
    Sketcher.Constraint("Symmetric", 30, 2, 37, 2, -1),
    Sketcher.Constraint("Symmetric", 19, 2, 40, 2, -1),
    Sketcher.Constraint("Symmetric", 18, 2, 41, 2, -1),
    Sketcher.Constraint("Symmetric", 17, 2, 42, 2, -1),
    Sketcher.Constraint("Symmetric", 16, 2, 43, 2, -1),
    Sketcher.Constraint("Symmetric", 15, 2, 44, 2, -1),
    Sketcher.Constraint("Symmetric", 14, 2, 45, 2, -1),
    Sketcher.Constraint("Symmetric", 13, 2, 46, 2, -1),
    Sketcher.Constraint("Symmetric", 12, 2, 47, 2, -1),
    Sketcher.Constraint("Symmetric", 11, 2, 48, 2, -1),
    Sketcher.Constraint("Symmetric", 10, 2, 49, 2, -1),
    Sketcher.Constraint("Symmetric", 9, 2, 50, 2, -1),
    Sketcher.Constraint("Symmetric", 8, 2, 51, 2, -1),
    Sketcher.Constraint("Perpendicular", 8, 9),
    Sketcher.Constraint("Perpendicular", 9, 10),
    Sketcher.Constraint("Perpendicular", 10, 11),
    Sketcher.Constraint("Perpendicular", 11, 12),
    Sketcher.Constraint("Perpendicular", 12, 13),
    Sketcher.Constraint("Perpendicular", 13, 14),
    Sketcher.Constraint("Perpendicular", 14, 15),
    Sketcher.Constraint("Perpendicular", 15, 16),
    Sketcher.Constraint("Perpendicular", 16, 17),
    Sketcher.Constraint("Perpendicular", 17, 18),
    Sketcher.Constraint("Perpendicular", 18, 19),
    Sketcher.Constraint("Perpendicular", 20, 21),
    Sketcher.Constraint("Perpendicular", 21, 22),
    Sketcher.Constraint("Perpendicular", 22, 23),
    Sketcher.Constraint("Parallel", 19, 24),
    Sketcher.Constraint("Parallel", 53, 55),
    Sketcher.Constraint("Parallel", 52, 56),
    Sketcher.Constraint("Parallel", 56, 58),
    Sketcher.Constraint("Parallel", 54, 60),
    Sketcher.Constraint("Parallel", 59, 61),
    Sketcher.Constraint("Parallel", 58, 62),
    Sketcher.Constraint("Parallel", 57, 63),
    Sketcher.Constraint("Horizontal", 1, 2, 4, 2),
    Sketcher.Constraint("Horizontal", 3, 2, 6, 2),
    Sketcher.Constraint("Horizontal", 7, 2, 30, 2),
    Sketcher.Constraint("Horizontal", 29, 2, 32, 2),
    Sketcher.Constraint("Horizontal", 5, 2, 36, 2),
    Sketcher.Constraint("Horizontal", 35, 2, 38, 2),
    Sketcher.Constraint("Equal", 3, 5),
    Sketcher.Constraint("Equal", 7, 31),
    Sketcher.Constraint("Equal", 29, 33),
    Sketcher.Constraint("Equal", 37, 28),
    Sketcher.Constraint("Equal", 39, 30),
    Sketcher.Constraint("Equal", 9, 10),
    Sketcher.Constraint("Equal", 8, 11),
    Sketcher.Constraint("Equal", 10, 12),
    Sketcher.Constraint("Equal", 12, 13),
    Sketcher.Constraint("Equal", 11, 14),
    Sketcher.Constraint("Equal", 13, 15),
    Sketcher.Constraint("Equal", 15, 16),
    Sketcher.Constraint("Equal", 14, 17),
    Sketcher.Constraint("Equal", 17, 20),
    Sketcher.Constraint("Equal", 53, 55),
    Sketcher.Constraint("Equal", 52, 56),
    Sketcher.Constraint("Equal", 56, 58),
    Sketcher.Constraint("Equal", 54, 60),
    Sketcher.Constraint("Equal", 59, 61),
    Sketcher.Constraint("DistanceX", 1, 1, 1, 2, 1.0),
    Sketcher.Constraint("DistanceY", 0, 2, 0, 1, 8.0),
    Sketcher.Constraint("Angle", 8, Q("-150 deg")),
    Sketcher.Constraint("Distance", 8, 1.0),
    Sketcher.Constraint("Distance", 21, 8.0),
    Sketcher.Constraint("DistanceX", 0, 2, -1, 1, 11.0),
    Sketcher.Constraint("Distance", 9, 3.5),
    Sketcher.Constraint("DistanceY", -1, 1, 52, 2, 12.184802),
    Sketcher.Constraint("Distance", 52, 1.032179),
    Sketcher.Constraint("Distance", 54, 0.326378),
    Sketcher.Constraint("Distance", 57, 0.32542),
    Sketcher.Constraint("Distance", 59, 1.041919),
    Sketcher.Constraint("DistanceX", 8, 2, -1, 1, 14.099679),
    Sketcher.Constraint("DistanceY", -1, 1, 8, 2, 23.421361),
    Sketcher.Constraint("DistanceX", -1, 1, 20, 2, 15.130768),
    Sketcher.Constraint("DistanceY", -1, 1, 20, 2, 18.207259),
    Sketcher.Constraint("DistanceY", -1, 1, 56, 2, 12.864189),
    Sketcher.Constraint("DistanceY", -1, 1, 57, 2, 12.582338),
    Sketcher.Constraint("DistanceX", 59, 2, -1, 1, 21.800381),
    Sketcher.Constraint("DistanceY", -1, 1, 59, 2, 11.163969),
    Sketcher.Constraint("DistanceX", 60, 2, -1, 1, 21.517829),
    Sketcher.Constraint("Distance", 53, 1.039747),
    Sketcher.Constraint("DistanceX", 4, 2, -1, 1, 23.333333),
    Sketcher.Constraint("DistanceX", -1, 1, 28, 2, 27.333333),
    Sketcher.Constraint("DistanceX", 53, 2, -1, 1, 20.314002),
])
pocket1 = body.newObject("PartDesign::Pocket", "Pocket")
pocket1.Profile = sketch2
pocket1.Length = 10

# Sketch on XY plane
sketch3 = body.newObject("Sketcher::SketchObject", "Sketch002")
sketch3.AttachmentSupport = (doc.getObject("XY_Plane"), [""])
sketch3.MapMode = "FlatFace"
sketch3.AttachmentOffset = App.Placement(V(0, 0, 2), App.Rotation())
sketch3.addGeometry([
    Part.LineSegment(V(-17, -21, 0), V(-1, -35, 0)),
    Part.ArcOfCircle(Part.Circle(V(0, 0, 0), V(0, 0, 1), 35), math.radians(-92), math.radians(172)),
    Part.LineSegment(V(-34, 5, 0), V(-17, -21, 0)),
], False)
sketch3.addConstraint([
    Sketcher.Constraint("Coincident", 0, 2, 1, 1),
    Sketcher.Constraint("Coincident", 1, 2, 2, 1),
    Sketcher.Constraint("Coincident", 2, 2, 0, 1),
    Sketcher.Constraint("Coincident", 1, 3, -1, 1),
    Sketcher.Constraint("Radius", 1, 34.777612),
    Sketcher.Constraint("DistanceX", 0, 2, -1, 1, 1.119551),
    Sketcher.Constraint("DistanceX", 1, 2, -1, 1, 34.42627),
    Sketcher.Constraint("DistanceY", 2, 2, -1, 1, 21.47403),
    Sketcher.Constraint("Distance", 0, 20.432364),
])
pocket2 = body.newObject("PartDesign::Pocket", "Pocket001")
pocket2.Profile = sketch3
pocket2.Length = 10
doc.recompute()

fillet = body.newObject("PartDesign::Fillet", "Fillet")
fillet.Base = (pocket2, edges_at(pocket2, [(-16.643, -21.474, 1)]))
fillet.Radius = 1
doc.recompute()

fillet2 = body.newObject("PartDesign::Fillet", "Fillet001")
fillet2.Base = (fillet, edges_at(fillet, [(-1.12, -34.76, 1)]))
fillet2.Radius = 4

doc.recompute()
